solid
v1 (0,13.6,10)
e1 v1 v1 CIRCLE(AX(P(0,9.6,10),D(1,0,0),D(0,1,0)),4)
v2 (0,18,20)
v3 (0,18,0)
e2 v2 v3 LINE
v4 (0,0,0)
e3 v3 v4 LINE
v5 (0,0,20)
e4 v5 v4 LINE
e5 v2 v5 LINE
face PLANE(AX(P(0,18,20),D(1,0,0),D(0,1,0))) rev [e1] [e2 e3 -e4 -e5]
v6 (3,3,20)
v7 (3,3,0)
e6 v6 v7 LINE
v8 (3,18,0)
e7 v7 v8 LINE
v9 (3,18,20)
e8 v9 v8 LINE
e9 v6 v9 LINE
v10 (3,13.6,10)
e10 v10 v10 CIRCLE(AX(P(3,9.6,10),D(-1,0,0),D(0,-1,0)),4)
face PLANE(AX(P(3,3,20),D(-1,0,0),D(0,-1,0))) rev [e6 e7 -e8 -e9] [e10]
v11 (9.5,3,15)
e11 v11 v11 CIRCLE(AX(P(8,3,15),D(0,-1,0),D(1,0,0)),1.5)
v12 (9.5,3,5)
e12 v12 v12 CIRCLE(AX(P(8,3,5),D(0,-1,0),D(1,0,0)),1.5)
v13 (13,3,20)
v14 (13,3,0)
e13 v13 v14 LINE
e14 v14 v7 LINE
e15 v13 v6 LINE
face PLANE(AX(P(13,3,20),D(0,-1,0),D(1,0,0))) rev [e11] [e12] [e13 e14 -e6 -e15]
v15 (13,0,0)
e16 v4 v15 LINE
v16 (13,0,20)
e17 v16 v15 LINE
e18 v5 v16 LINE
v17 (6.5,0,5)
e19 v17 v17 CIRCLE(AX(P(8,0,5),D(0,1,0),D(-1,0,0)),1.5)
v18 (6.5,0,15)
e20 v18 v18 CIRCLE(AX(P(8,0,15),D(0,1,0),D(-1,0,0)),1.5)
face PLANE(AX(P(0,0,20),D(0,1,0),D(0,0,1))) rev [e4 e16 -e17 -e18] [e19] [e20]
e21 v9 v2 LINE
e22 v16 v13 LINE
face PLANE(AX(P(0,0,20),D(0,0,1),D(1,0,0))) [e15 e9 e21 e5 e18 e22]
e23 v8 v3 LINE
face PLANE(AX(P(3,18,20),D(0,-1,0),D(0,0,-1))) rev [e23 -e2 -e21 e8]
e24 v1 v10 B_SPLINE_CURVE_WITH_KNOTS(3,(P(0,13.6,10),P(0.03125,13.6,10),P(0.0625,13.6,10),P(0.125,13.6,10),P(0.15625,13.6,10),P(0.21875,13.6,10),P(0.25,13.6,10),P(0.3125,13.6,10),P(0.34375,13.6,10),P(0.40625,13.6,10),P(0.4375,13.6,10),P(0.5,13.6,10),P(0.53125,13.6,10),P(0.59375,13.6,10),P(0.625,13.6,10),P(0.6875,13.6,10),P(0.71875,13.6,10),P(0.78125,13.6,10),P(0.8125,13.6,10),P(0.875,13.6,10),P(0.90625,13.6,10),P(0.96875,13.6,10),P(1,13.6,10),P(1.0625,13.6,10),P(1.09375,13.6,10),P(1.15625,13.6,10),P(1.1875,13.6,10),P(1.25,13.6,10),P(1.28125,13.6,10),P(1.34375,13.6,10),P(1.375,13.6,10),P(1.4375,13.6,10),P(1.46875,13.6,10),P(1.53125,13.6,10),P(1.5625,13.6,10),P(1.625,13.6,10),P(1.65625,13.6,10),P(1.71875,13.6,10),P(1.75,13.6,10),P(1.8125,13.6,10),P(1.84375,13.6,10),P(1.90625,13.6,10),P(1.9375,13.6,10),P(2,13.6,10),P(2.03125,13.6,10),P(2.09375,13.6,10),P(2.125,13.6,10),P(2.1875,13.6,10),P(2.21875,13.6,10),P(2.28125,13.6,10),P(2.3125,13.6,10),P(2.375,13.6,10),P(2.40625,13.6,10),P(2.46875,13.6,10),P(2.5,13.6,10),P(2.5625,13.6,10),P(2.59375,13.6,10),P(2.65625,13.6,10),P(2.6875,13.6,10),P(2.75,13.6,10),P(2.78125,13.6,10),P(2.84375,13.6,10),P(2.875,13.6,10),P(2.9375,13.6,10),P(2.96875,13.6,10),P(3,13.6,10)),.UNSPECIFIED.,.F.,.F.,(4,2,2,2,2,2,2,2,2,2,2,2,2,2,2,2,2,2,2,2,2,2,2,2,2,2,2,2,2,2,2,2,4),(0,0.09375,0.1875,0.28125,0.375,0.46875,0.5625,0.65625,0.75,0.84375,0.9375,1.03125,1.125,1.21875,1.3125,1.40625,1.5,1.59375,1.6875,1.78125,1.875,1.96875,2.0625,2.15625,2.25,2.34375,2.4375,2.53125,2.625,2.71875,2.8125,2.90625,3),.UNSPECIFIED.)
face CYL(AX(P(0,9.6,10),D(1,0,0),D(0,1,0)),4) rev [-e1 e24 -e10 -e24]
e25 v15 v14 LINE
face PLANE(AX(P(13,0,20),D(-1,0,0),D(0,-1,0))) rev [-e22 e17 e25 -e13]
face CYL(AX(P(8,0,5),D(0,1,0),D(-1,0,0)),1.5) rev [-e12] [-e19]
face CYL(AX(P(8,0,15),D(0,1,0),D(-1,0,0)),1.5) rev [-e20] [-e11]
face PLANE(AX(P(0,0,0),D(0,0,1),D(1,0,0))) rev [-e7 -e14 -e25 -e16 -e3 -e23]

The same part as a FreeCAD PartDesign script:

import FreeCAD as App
import Part
import Sketcher
Q = App.Units.Quantity


def add_polygon(sketch, points):
    """Adds a closed chain of lines whose ends are joined by coincident constraints."""
    first, n = sketch.GeometryCount, len(points)
    for a, b in zip(points, points[1:] + points[:1]):
        sketch.addGeometry(Part.LineSegment(App.Vector(*a, 0), App.Vector(*b, 0)), False)
    for i in range(n):
        sketch.addConstraint(Sketcher.Constraint("Coincident", first + i, 2, first + (i + 1) % n, 1))

doc = App.newDocument("Part")
body = doc.addObject("PartDesign::Body", "Body")

# Sketch on XY plane
sketch1 = doc.addObject("Sketcher::SketchObject", "Sketch")
body.addObject(sketch1)
sketch1.AttachmentSupport = (doc.XY_Plane, [""])
sketch1.MapMode = "FlatFace"
add_polygon(sketch1, [(0, 0), (13, 0), (13, 3), (3, 3), (3, 18), (0, 18)])  # lines 0-5
sketch1.addConstraint([
    Sketcher.Constraint("Horizontal", 0),
    Sketcher.Constraint("Vertical", 1),
    Sketcher.Constraint("Horizontal", 2),
    Sketcher.Constraint("Vertical", 3),
    Sketcher.Constraint("Horizontal", 4),
    Sketcher.Constraint("Vertical", 5),
    Sketcher.Constraint("Coincident", 5, 2, -1, 1),
    Sketcher.Constraint("Equal", 4, 1),
    Sketcher.Constraint("DistanceX", 0, 1, 0, 2, Q("13 mm")),
    Sketcher.Constraint("DistanceX", 2, 2, 2, 1, Q("10 mm")),
    Sketcher.Constraint("DistanceY", 3, 1, 3, 2, Q("15 mm")),
])
pad1 = doc.addObject("PartDesign::Pad", "Pad")
body.addObject(pad1)
pad1.Profile = sketch1
pad1.Length = 20

# Sketch on YZ plane
sketch2 = doc.addObject("Sketcher::SketchObject", "Sketch001")
body.addObject(sketch2)
sketch2.AttachmentSupport = (doc.YZ_Plane, [""])
sketch2.MapMode = "FlatFace"
sketch2.AttachmentOffset = App.Placement(App.Vector(0, 0, 3), App.Rotation())
sketch2.addGeometry(Part.Circle(App.Vector(9.6, 10, 0), App.Vector(0, 0, 1), 4), False)
sketch2.addConstraint([
    Sketcher.Constraint("Diameter", 0, Q("8 mm")),
    Sketcher.Constraint("DistanceY", -1, 1, 0, 3, Q("10 mm")),
    Sketcher.Constraint("DistanceX", -1, 1, 0, 3, Q("9.6 mm")),
])
pocket1 = doc.addObject("PartDesign::Pocket", "Pocket")
body.addObject(pocket1)
pocket1.Profile = sketch2
pocket1.Type = "ThroughAll"
pocket1.Midplane = True

# Sketch on XZ plane
sketch3 = doc.addObject("Sketcher::SketchObject", "Sketch002")
body.addObject(sketch3)
sketch3.AttachmentSupport = (doc.XZ_Plane, [""])
sketch3.MapMode = "FlatFace"
sketch3.AttachmentOffset = App.Placement(App.Vector(0, 0, -3), App.Rotation())
sketch3.addGeometry([
    Part.Circle(App.Vector(8, 5, 0), App.Vector(0, 0, 1), 1.5),
    Part.Circle(App.Vector(8, 15, 0), App.Vector(0, 0, 1), 1.5),
], False)
sketch3.addConstraint([
    Sketcher.Constraint("Equal", 0, 1),
    Sketcher.Constraint("Vertical", 0, 3, 1, 3),
    Sketcher.Constraint("Diameter", 0, Q("3 mm")),
    Sketcher.Constraint("DistanceX", -1, 1, 0, 3, Q("8 mm")),
    Sketcher.Constraint("DistanceY", -1, 1, 0, 3, Q("5 mm")),
    Sketcher.Constraint("DistanceY", -1, 1, 1, 3, Q("15 mm")),
])
pocket2 = doc.addObject("PartDesign::Pocket", "Pocket001")
body.addObject(pocket2)
pocket2.Profile = sketch3
pocket2.Type = "ThroughAll"
pocket2.Midplane = True

doc.recompute()
